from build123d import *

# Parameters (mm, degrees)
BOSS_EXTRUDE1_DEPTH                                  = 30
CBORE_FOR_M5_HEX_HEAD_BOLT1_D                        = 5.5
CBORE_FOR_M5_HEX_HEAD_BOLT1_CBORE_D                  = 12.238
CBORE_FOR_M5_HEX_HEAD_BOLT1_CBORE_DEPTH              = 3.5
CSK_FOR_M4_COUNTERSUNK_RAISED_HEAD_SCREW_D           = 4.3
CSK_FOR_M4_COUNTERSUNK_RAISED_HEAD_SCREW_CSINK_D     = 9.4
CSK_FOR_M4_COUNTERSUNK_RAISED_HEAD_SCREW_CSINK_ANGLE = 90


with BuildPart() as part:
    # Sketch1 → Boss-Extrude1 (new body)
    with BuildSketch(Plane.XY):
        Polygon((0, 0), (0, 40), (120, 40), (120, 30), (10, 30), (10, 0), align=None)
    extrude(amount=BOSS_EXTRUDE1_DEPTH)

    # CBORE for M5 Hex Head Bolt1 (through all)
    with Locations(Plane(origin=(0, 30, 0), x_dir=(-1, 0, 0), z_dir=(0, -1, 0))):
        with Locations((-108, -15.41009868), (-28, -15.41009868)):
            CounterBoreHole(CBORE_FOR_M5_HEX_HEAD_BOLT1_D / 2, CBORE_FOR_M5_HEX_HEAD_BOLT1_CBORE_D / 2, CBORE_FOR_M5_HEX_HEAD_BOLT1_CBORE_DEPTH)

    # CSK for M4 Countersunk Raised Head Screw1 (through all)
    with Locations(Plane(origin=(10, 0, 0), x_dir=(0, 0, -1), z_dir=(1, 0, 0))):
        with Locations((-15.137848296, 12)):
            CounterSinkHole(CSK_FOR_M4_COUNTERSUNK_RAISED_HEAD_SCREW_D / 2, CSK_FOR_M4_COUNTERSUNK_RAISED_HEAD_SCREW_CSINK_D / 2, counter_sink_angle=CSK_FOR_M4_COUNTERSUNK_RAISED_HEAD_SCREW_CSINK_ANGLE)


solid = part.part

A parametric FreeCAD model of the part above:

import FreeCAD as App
import Part
import Sketcher

doc = App.newDocument("Part")
body = doc.addObject("PartDesign::Body", "Body")

sketch1 = body.newObject("Sketcher::SketchObject", "Sketch")
sketch1.AttachmentSupport = (doc.getObject("XY_Plane"), [""])
sketch1.MapMode = "FlatFace"
sketch1.addGeometry([
    Part.LineSegment(App.Vector(0, 40, 0), App.Vector(0, 0, 0)),
    Part.LineSegment(App.Vector(0, 0, 0), App.Vector(10, 0, 0)),
    Part.LineSegment(App.Vector(10, 0, 0), App.Vector(10, 30, 0)),
    Part.LineSegment(App.Vector(10, 30, 0), App.Vector(120, 30, 0)),
    Part.LineSegment(App.Vector(120, 30, 0), App.Vector(120, 40, 0)),
    Part.LineSegment(App.Vector(120, 40, 0), App.Vector(0, 40, 0)),
], False)
sketch1.addConstraint([
    Sketcher.Constraint("Coincident", 0, 2, 1, 1),
    Sketcher.Constraint("Coincident", 1, 2, 2, 1),
    Sketcher.Constraint("Coincident", 2, 2, 3, 1),
    Sketcher.Constraint("Coincident", 3, 2, 4, 1),
    Sketcher.Constraint("Coincident", 4, 2, 5, 1),
    Sketcher.Constraint("Coincident", 5, 2, 0, 1),
    Sketcher.Constraint("Vertical", 0),
    Sketcher.Constraint("Horizontal", 1),
    Sketcher.Constraint("Vertical", 2),
    Sketcher.Constraint("Horizontal", 3),
    Sketcher.Constraint("Vertical", 4),
    Sketcher.Constraint("Horizontal", 5),
    Sketcher.Constraint("Coincident", 0, 2, -1, 1),
    Sketcher.Constraint("Equal", 1, 4),
    Sketcher.Constraint("DistanceX", 1, 1, 1, 2, 10.0),
    Sketcher.Constraint("DistanceX", 3, 1, 3, 2, 110.0),
    Sketcher.Constraint("DistanceY", 0, 2, 0, 1, 40.0),
])
pad1 = body.newObject("PartDesign::Pad", "Pad")
pad1.Profile = sketch1
pad1.Length = 30

sketch2 = body.newObject("Sketcher::SketchObject", "Sketch001")
sketch2.AttachmentSupport = (doc.getObject("XZ_Plane"), [""])
sketch2.MapMode = "FlatFace"
sketch2.AttachmentOffset = App.Placement(App.Vector(0, 0, -30), App.Rotation())
sketch2.addGeometry([
    Part.Circle(App.Vector(108, 15.410099, 0), App.Vector(0, 0, 1), 2.75),
    Part.Circle(App.Vector(28, 15.410099, 0), App.Vector(0, 0, 1), 2.75),
], False)
sketch2.addConstraint([
    Sketcher.Constraint("Equal", 0, 1),
    Sketcher.Constraint("Horizontal", 0, 3, 1, 3),
    Sketcher.Constraint("Diameter", 0, 5.5),
    Sketcher.Constraint("DistanceX", -1, 1, 0, 3, 108.0),
    Sketcher.Constraint("DistanceX", -1, 1, 1, 3, 28.0),
    Sketcher.Constraint("DistanceY", -1, 1, 0, 3, 15.410099),
])
doc.recompute()
hole = body.newObject("PartDesign::Hole", "Hole")
hole.Profile = sketch2
hole.ThreadType = "None"
hole.Diameter = 5.5
hole.DepthType = "ThroughAll"
hole.HoleCutType = "Counterbore"
hole.HoleCutDiameter = 12.238
hole.HoleCutDepth = 3.5

sketch3 = body.newObject("Sketcher::SketchObject", "Sketch002")
sketch3.AttachmentSupport = (doc.getObject("YZ_Plane"), [""])
sketch3.MapMode = "FlatFace"
sketch3.AttachmentOffset = App.Placement(App.Vector(0, 0, 10), App.Rotation())
sketch3.addGeometry(Part.Circle(App.Vector(12, 15.137848, 0), App.Vector(0, 0, 1), 2.15), False)
sketch3.addConstraint([
    Sketcher.Constraint("Diameter", 0, 4.3),
    Sketcher.Constraint("DistanceX", -1, 1, 0, 3, 12.0),
    Sketcher.Constraint("DistanceY", -1, 1, 0, 3, 15.137848),
])
doc.recompute()
hole2 = body.newObject("PartDesign::Hole", "Hole001")
hole2.Profile = sketch3
hole2.ThreadType = "None"
hole2.Diameter = 4.3
hole2.DepthType = "ThroughAll"
hole2.HoleCutType = "Countersink"
hole2.HoleCutDiameter = 9.4
hole2.HoleCutCountersinkAngle = 90

doc.recompute()
